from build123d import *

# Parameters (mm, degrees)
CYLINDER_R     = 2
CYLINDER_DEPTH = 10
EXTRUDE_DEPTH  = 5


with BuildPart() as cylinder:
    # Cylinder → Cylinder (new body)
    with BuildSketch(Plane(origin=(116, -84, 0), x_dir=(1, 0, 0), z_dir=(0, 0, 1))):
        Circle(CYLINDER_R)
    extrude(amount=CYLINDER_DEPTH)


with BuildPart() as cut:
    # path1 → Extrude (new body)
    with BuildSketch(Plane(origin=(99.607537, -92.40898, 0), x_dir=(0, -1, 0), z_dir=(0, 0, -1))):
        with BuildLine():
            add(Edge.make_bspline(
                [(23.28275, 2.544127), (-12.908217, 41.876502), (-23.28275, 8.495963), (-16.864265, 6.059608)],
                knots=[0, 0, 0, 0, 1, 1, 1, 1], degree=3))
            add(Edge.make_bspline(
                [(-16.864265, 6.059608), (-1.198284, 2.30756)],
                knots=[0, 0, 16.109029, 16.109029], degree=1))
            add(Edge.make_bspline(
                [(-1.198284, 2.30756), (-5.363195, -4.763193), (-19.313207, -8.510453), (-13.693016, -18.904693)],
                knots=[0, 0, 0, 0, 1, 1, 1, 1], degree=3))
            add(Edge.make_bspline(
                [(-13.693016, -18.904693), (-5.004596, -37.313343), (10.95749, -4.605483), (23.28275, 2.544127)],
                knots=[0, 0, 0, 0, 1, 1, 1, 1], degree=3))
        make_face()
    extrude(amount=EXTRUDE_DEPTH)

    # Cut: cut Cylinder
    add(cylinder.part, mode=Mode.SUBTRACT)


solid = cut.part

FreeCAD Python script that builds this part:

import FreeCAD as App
import Part
import Sketcher

V = App.Vector
Q = App.Units.Quantity

doc = App.newDocument("Part")
params = doc.addObject("Spreadsheet::Sheet", "Params")
for row, (alias, value) in enumerate([
    ("sketch1_diameter", "4 mm"),
    ("pad1_length", "10 mm"),
    ("pad2_length", "5 mm"),
], start=1):
    params.set(f"A{row}", alias)
    params.set(f"B{row}", "=" + value)
    params.setAlias(f"B{row}", alias)

body = doc.addObject("PartDesign::Body", "Body")

# Sketch on XY plane
sketch1 = body.newObject("Sketcher::SketchObject", "Sketch")
sketch1.AttachmentSupport = (doc.getObject("XY_Plane"), [""])
sketch1.MapMode = "FlatFace"
sketch1.addGeometry(Part.Circle(V(116, -84, 0), V(0, 0, 1), 2), False)
sketch1.addConstraint(Sketcher.Constraint("Diameter", 0, Q("4 mm")))
sketch1.addConstraint(Sketcher.Constraint("DistanceX", -1, 1, 0, 3, Q("116 mm")))
sketch1.addConstraint(Sketcher.Constraint("DistanceY", 0, 3, -1, 1, Q("84 mm")))
sketch1.setExpression("Constraints[0]", "Params.sketch1_diameter")
pad1 = body.newObject("PartDesign::Pad", "Pad")
pad1.Profile = sketch1
pad1.setExpression("Length", "Params.pad1_length")
body2 = doc.addObject("PartDesign::Body", "Body001")

# Sketch on XY plane
sketch2 = body2.newObject("Sketcher::SketchObject", "Sketch001")
sketch2.AttachmentSupport = (doc.getObject("XY_Plane001"), [""])
sketch2.MapMode = "FlatFace"
sketch2.addGeometry(Part.BSplineCurve([V(97.06341, -115.69173, 0), V(57.731035, -79.500763, 0), V(91.111574, -69.12623, 0), V(93.547929, -75.544715, 0)], [4, 4], [0, 1], False, 3, [1, 1, 1, 1], False), False)
sketch2.addGeometry(Part.BSplineCurve([V(93.547929, -75.544715, 0), V(97.299977, -91.210696, 0)], [2, 2], [0, 16.109029], False, 1, [1, 1], False), False)
sketch2.addGeometry(Part.BSplineCurve([V(97.299977, -91.210696, 0), V(104.37073, -87.045785, 0), V(108.11799, -73.095773, 0), V(118.51223, -78.715964, 0)], [4, 4], [0, 1], False, 3, [1, 1, 1, 1], False), False)
sketch2.addGeometry(Part.BSplineCurve([V(118.51223, -78.715964, 0), V(136.92088, -87.404384, 0), V(104.21302, -103.36647, 0), V(97.06341, -115.69173, 0)], [4, 4], [0, 1], False, 3, [1, 1, 1, 1], False), False)
sketch2.addConstraint(Sketcher.Constraint("Block", 0))
sketch2.addConstraint(Sketcher.Constraint("Block", 1))
sketch2.addConstraint(Sketcher.Constraint("Block", 2))
sketch2.addConstraint(Sketcher.Constraint("Block", 3))
pad2 = body2.newObject("PartDesign::Pad", "Pad001")
pad2.Profile = sketch2
pad2.setExpression("Length", "Params.pad2_length")
pad2.Reversed = True
doc.recompute()

boolean = body2.newObject("PartDesign::Boolean", "Boolean")
boolean.Type = "Cut"
boolean.addObjects([body])

doc.recompute()
